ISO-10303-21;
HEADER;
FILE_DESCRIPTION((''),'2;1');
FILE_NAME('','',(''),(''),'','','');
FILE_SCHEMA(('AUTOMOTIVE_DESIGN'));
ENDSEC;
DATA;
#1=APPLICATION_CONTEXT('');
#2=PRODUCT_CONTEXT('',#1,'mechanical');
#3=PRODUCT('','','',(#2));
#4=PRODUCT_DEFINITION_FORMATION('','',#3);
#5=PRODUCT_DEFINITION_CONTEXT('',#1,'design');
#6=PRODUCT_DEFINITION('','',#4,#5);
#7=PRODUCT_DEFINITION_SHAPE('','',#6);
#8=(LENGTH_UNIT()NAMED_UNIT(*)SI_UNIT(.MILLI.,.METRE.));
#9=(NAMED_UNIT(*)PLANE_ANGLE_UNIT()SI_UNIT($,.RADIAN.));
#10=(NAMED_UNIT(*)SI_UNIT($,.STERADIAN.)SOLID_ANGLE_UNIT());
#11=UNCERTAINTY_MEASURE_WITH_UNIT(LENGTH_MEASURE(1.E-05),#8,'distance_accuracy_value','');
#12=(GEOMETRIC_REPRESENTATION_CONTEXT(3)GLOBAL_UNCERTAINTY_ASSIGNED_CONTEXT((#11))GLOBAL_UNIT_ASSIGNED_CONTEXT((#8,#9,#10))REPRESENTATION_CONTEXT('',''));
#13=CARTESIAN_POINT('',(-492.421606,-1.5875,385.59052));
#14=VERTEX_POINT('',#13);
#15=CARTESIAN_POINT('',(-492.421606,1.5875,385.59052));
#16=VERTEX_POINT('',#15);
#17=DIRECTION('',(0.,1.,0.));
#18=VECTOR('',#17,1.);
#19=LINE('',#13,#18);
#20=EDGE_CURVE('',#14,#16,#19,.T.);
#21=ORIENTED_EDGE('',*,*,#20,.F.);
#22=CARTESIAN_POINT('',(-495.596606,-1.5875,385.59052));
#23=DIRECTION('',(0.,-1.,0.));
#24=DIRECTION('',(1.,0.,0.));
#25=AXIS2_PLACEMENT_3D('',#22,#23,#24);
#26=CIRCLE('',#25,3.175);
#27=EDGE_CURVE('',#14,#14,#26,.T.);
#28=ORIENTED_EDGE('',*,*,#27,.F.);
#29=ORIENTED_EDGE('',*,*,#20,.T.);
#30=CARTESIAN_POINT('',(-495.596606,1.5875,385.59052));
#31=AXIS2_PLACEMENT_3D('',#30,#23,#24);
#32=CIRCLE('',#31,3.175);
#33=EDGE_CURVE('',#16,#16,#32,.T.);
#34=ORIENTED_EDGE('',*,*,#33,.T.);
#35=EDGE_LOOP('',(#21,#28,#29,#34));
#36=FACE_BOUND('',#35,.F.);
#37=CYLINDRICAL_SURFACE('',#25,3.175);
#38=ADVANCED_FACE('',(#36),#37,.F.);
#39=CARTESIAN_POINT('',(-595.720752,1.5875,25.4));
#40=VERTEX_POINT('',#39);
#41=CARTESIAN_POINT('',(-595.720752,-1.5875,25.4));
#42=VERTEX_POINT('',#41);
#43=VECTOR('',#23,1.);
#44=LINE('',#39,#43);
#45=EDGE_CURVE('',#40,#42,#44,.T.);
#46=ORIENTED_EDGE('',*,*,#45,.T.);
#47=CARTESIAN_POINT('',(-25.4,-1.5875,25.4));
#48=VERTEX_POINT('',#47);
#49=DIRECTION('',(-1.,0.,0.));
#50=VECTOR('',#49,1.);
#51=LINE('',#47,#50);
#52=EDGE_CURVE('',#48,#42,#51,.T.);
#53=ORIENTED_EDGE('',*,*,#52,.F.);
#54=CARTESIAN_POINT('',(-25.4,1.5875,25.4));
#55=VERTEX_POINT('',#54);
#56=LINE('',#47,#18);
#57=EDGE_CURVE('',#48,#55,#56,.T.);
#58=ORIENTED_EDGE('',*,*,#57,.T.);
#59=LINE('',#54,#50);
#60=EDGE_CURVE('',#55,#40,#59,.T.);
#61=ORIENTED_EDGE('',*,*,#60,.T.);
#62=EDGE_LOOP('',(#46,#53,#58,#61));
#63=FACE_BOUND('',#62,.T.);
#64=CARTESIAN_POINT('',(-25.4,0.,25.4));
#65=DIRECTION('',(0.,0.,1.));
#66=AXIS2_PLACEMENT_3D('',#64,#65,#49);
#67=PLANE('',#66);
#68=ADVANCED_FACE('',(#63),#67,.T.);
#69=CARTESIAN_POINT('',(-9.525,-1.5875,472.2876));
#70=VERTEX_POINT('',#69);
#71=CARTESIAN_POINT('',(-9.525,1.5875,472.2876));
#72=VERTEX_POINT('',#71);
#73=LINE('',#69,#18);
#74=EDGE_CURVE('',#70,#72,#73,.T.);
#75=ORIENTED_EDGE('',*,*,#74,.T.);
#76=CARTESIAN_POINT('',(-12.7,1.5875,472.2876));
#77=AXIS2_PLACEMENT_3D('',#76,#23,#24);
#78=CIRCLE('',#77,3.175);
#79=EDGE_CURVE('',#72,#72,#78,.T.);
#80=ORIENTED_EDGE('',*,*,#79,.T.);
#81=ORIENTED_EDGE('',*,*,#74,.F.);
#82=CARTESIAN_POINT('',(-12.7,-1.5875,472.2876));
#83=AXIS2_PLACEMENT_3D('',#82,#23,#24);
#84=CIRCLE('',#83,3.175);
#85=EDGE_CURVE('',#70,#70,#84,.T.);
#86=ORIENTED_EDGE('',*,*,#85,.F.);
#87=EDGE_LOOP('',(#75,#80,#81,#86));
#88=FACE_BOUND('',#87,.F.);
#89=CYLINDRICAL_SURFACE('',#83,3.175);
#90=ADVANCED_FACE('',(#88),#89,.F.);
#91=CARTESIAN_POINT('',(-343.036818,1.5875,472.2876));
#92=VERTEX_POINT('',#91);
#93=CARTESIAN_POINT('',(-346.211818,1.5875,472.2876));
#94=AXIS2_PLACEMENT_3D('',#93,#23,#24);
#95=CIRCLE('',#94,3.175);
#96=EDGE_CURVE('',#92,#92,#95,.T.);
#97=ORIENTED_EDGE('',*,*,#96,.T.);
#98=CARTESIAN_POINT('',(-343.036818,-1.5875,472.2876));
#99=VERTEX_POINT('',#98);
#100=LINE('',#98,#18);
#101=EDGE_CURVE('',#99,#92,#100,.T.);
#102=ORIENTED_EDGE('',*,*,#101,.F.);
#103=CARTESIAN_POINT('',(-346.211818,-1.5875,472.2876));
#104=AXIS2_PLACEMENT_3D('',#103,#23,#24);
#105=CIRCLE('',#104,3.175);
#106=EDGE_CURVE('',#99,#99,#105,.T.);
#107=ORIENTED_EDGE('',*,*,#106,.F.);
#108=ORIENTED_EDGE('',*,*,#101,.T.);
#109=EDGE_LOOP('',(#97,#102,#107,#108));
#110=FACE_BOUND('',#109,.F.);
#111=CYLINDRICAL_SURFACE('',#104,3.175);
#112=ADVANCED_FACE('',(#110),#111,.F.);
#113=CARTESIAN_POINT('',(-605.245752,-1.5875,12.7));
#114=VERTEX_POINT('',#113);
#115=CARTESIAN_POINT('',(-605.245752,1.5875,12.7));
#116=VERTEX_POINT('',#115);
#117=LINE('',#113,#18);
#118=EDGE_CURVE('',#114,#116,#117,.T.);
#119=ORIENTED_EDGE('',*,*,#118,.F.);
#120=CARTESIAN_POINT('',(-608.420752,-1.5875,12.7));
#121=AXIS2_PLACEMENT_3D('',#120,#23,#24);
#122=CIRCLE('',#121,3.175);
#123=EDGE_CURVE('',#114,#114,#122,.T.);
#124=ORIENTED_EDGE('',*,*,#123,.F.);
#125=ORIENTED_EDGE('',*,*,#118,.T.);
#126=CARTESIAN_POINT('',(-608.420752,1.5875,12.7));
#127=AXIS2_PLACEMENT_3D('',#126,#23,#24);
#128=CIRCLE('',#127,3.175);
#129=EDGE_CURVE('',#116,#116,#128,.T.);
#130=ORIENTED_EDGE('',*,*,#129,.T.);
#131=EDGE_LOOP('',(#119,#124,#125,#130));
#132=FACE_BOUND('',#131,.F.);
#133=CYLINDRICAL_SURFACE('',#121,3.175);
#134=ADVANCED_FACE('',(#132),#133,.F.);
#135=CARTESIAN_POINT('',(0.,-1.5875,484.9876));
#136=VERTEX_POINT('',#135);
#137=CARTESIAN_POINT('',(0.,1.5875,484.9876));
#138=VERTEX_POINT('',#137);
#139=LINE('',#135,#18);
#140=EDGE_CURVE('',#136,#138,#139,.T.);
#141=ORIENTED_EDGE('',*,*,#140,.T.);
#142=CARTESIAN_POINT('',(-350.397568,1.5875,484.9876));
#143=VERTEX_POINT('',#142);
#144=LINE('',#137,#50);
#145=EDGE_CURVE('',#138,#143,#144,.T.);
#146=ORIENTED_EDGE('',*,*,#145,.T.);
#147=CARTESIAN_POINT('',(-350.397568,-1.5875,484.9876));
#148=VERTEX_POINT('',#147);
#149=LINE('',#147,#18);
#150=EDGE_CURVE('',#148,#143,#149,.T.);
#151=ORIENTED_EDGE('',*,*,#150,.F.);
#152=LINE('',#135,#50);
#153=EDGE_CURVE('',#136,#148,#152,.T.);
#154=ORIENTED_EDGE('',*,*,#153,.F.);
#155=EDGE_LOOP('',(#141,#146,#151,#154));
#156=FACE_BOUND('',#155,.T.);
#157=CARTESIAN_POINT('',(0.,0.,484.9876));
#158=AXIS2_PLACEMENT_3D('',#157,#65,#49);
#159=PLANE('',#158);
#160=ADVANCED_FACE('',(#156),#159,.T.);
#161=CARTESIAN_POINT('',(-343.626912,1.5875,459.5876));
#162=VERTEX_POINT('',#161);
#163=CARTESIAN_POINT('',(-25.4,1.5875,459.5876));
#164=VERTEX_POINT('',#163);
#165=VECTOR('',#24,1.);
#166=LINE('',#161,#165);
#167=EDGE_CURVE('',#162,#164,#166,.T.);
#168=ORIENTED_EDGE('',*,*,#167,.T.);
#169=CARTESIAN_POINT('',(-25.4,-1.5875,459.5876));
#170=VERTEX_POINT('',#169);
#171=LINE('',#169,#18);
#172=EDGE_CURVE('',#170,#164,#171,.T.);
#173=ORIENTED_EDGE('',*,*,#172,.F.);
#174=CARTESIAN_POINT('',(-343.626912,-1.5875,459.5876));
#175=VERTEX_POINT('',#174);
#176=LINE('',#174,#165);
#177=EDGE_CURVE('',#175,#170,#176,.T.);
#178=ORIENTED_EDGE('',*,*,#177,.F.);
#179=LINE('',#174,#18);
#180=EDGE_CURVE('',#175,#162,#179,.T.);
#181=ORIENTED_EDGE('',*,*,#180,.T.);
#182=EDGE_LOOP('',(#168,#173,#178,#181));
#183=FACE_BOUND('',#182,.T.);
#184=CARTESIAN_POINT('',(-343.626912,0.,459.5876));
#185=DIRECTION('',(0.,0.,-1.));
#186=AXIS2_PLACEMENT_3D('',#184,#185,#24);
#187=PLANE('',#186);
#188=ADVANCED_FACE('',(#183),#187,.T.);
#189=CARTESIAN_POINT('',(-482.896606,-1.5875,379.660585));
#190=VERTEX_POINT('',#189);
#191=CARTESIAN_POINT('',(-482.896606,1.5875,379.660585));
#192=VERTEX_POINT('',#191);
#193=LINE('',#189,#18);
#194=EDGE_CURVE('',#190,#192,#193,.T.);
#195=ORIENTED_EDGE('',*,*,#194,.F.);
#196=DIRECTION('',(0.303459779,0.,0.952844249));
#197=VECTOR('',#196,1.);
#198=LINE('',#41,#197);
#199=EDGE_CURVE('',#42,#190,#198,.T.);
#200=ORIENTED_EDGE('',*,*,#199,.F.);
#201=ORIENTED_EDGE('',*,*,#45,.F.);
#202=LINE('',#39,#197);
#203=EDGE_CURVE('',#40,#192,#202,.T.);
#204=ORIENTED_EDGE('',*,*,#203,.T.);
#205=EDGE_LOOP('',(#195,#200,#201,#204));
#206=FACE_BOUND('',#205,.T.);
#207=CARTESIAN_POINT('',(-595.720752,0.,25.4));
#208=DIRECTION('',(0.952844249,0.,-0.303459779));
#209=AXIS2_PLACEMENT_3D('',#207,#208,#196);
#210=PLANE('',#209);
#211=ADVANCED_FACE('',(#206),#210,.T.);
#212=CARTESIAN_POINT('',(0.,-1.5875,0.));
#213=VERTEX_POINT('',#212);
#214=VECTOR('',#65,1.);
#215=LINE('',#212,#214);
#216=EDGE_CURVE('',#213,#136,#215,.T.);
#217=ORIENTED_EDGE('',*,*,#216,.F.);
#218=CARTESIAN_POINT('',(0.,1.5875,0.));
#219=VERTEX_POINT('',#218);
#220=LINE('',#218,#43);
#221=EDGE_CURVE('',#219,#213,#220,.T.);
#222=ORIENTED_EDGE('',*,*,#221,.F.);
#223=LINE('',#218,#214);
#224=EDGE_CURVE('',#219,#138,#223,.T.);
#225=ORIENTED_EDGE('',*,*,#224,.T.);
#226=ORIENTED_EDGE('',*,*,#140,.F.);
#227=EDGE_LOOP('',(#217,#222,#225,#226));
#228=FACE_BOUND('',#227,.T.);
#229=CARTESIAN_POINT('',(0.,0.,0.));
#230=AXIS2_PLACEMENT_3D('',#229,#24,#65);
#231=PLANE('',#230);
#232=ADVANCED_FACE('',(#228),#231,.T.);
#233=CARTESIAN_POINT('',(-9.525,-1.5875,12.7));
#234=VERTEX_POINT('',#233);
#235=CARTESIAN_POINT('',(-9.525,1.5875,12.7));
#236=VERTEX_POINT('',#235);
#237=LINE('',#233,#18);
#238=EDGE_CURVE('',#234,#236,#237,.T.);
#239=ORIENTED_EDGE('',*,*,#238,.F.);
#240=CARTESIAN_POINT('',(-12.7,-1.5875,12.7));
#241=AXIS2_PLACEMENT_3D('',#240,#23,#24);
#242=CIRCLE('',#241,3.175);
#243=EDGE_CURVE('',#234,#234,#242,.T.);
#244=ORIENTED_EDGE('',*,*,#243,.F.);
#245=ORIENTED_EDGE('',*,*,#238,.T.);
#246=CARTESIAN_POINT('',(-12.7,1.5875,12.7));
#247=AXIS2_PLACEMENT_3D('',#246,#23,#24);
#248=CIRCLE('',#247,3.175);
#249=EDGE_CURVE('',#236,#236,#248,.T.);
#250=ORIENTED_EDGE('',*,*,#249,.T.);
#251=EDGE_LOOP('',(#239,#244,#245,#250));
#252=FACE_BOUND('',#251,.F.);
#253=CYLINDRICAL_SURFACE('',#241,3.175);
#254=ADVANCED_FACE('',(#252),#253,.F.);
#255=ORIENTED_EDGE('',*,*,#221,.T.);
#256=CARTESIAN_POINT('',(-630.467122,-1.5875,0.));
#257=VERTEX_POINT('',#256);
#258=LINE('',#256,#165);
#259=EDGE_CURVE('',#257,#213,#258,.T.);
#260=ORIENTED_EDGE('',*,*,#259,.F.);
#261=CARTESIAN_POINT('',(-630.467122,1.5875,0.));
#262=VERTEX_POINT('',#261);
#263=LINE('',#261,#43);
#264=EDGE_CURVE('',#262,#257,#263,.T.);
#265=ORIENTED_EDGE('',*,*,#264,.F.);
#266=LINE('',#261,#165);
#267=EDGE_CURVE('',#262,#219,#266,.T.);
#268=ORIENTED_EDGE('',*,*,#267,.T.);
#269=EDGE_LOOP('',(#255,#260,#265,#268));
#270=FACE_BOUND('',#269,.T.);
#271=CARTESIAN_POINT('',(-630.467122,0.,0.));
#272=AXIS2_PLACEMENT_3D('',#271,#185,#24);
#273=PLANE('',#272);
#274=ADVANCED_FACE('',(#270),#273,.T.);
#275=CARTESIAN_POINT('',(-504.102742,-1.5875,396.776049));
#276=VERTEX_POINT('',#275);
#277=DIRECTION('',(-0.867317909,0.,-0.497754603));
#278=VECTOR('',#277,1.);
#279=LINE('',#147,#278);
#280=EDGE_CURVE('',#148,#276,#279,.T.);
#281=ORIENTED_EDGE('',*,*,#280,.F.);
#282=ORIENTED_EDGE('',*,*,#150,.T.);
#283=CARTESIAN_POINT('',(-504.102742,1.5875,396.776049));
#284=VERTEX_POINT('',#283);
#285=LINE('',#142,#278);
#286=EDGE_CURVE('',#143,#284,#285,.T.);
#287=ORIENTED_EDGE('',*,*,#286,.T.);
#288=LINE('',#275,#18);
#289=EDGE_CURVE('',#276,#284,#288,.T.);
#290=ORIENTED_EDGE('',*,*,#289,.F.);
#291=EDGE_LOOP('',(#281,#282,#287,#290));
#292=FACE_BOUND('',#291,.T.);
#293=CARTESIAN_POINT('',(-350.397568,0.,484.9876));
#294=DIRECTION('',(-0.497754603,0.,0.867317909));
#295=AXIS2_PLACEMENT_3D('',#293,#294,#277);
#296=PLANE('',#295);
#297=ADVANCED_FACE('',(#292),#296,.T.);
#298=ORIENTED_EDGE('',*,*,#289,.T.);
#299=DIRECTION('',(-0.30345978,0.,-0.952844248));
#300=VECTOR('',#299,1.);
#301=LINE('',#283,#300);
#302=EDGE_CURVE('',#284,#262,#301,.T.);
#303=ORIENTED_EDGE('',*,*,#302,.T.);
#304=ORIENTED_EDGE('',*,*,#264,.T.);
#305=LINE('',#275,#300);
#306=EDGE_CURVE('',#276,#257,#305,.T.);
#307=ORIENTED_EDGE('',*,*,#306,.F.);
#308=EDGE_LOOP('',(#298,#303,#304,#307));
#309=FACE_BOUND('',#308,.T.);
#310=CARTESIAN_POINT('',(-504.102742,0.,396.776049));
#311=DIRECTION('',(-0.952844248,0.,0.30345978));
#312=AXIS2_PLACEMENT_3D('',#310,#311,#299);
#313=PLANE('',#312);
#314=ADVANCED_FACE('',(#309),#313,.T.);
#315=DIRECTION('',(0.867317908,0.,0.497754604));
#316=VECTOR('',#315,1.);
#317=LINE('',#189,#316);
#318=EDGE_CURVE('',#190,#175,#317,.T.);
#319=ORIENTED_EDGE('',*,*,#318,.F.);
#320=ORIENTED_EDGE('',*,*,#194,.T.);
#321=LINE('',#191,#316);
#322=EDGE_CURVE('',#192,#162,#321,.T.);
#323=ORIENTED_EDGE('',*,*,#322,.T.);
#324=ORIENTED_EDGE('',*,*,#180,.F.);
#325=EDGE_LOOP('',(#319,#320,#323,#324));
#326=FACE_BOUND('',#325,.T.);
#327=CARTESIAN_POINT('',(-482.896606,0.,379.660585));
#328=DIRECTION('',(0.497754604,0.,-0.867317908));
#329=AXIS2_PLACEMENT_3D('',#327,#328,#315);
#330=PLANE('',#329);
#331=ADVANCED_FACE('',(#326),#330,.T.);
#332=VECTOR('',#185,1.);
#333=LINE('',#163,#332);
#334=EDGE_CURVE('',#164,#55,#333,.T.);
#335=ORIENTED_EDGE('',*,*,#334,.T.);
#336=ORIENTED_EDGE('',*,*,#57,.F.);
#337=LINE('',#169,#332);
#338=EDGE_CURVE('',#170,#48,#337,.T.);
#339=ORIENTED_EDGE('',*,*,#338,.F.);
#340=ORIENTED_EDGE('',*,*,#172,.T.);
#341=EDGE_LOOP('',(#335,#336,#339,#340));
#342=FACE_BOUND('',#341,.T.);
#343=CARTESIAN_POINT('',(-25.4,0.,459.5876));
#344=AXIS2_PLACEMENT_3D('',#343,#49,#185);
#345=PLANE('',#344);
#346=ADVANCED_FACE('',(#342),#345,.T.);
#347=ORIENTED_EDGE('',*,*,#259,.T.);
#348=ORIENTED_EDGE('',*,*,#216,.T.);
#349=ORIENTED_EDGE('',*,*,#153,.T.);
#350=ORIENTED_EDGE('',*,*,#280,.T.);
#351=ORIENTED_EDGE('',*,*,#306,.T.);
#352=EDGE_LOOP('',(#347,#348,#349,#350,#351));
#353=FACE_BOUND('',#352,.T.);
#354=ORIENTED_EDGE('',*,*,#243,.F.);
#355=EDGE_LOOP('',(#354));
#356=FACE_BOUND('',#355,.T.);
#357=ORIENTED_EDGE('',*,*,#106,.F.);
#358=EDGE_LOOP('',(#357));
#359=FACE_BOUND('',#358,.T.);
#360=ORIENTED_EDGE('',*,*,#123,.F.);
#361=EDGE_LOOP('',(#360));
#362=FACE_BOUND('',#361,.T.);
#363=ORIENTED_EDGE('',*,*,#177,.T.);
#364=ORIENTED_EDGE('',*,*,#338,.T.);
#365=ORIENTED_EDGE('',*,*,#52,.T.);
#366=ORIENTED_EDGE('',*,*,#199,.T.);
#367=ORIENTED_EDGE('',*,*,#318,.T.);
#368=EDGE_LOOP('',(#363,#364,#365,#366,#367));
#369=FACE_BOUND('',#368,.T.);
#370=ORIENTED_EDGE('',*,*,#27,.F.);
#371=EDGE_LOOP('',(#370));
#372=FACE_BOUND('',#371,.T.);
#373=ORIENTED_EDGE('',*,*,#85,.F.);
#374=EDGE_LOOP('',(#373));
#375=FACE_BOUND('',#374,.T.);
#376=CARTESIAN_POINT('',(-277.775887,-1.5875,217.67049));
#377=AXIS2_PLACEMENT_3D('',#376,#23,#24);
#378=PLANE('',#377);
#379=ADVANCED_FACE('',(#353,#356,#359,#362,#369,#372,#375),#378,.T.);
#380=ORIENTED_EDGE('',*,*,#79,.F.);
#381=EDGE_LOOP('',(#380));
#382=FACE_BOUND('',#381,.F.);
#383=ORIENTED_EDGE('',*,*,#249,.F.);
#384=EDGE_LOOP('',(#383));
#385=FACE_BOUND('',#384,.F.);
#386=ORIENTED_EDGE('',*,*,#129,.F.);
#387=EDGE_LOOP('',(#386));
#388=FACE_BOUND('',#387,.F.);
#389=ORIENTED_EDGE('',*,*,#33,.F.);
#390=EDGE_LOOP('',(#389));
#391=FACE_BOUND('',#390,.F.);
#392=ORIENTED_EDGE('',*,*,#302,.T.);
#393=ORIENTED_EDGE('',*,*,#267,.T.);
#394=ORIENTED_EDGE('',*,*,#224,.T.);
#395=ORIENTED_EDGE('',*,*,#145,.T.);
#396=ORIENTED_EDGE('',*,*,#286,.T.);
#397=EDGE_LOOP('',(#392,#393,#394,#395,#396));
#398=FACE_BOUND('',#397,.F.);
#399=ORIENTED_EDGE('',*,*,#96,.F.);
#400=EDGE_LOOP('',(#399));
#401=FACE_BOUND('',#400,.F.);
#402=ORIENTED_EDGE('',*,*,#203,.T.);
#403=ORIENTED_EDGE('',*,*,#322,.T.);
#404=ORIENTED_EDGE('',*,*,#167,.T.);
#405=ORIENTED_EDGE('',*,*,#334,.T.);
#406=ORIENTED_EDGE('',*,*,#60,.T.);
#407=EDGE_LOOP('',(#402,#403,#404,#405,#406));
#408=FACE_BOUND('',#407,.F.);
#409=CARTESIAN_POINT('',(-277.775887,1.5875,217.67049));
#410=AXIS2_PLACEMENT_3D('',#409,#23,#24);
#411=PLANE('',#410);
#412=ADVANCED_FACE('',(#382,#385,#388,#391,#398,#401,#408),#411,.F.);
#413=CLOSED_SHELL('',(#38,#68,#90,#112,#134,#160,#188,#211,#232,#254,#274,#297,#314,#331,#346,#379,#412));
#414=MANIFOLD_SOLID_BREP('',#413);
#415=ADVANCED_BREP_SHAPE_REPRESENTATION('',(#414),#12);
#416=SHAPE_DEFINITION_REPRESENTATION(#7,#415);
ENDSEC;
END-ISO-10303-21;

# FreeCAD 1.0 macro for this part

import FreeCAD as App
import Part
import Sketcher

V = App.Vector
Q = App.Units.Quantity


def add_polygon(sketch, points):
    """Adds a closed chain of lines whose ends are joined by coincident constraints."""
    first, n = sketch.GeometryCount, len(points)
    for a, b in zip(points, points[1:] + points[:1]):
        sketch.addGeometry(Part.LineSegment(App.Vector(*a, 0), App.Vector(*b, 0)), False)
    for i in range(n):
        sketch.addConstraint(Sketcher.Constraint("Coincident", first + i, 2, first + (i + 1) % n, 1))

doc = App.newDocument("Part")
body = doc.addObject("PartDesign::Body", "Body")

sketch1 = doc.addObject("Sketcher::SketchObject", "Sketch")
body.addObject(sketch1)
sketch1.AttachmentSupport = (doc.XZ_Plane, [""])
sketch1.MapMode = "FlatFace"
add_polygon(sketch1, [(-504, 397), (-630, 0), (0, 0), (0, 485), (-350, 485)])
add_polygon(sketch1, [(-25, 25), (-596, 25), (-483, 380), (-344, 460), (-25, 460)])
sketch1.addConstraint(Sketcher.Constraint("Horizontal", 1))
sketch1.addConstraint(Sketcher.Constraint("Vertical", 2))
sketch1.addConstraint(Sketcher.Constraint("Horizontal", 3))
sketch1.addConstraint(Sketcher.Constraint("Horizontal", 5))
sketch1.addConstraint(Sketcher.Constraint("Horizontal", 8))
sketch1.addConstraint(Sketcher.Constraint("Vertical", 9))
sketch1.addConstraint(Sketcher.Constraint("Coincident", 1, 2, -1, 1))
sketch1.addConstraint(Sketcher.Constraint("Parallel", 0, 6))
sketch1.addConstraint(Sketcher.Constraint("Parallel", 4, 7))
sketch1.addConstraint(Sketcher.Constraint("DistanceY", -1, 1, 5, 2, Q("1 in")))
sketch1.addConstraint(Sketcher.Constraint("DistanceX", 8, 2, -1, 1, Q("1 in")))
sketch1.addConstraint(Sketcher.Constraint("DistanceY", 7, 2, 3, 2, Q("1 in")))
sketch1.addConstraint(Sketcher.Constraint("DistanceY", 2, 1, 2, 2, Q("19.094 in")))
sketch1.addConstraint(Sketcher.Constraint("DistanceX", 1, 1, 1, 2, Q("630.467122 mm")))
sketch1.addConstraint(Sketcher.Constraint("DistanceX", 3, 2, 3, 1, Q("350.397568 mm")))
sketch1.addConstraint(Sketcher.Constraint("DistanceX", 5, 2, 5, 1, Q("570.320752 mm")))
sketch1.addConstraint(Sketcher.Constraint("Distance", 6, Q("371.792751 mm")))
sketch1.addConstraint(Sketcher.Constraint("Distance", 7, Q("160.575139 mm")))
sketch1.addConstraint(Sketcher.Constraint("DistanceX", 8, 1, 8, 2, Q("318.226912 mm")))
pad1 = doc.addObject("PartDesign::Pad", "Pad")
body.addObject(pad1)
pad1.Profile = sketch1
pad1.Type = "TwoLengths"
pad1.Length = Q("0.0625 in")
pad1.Length2 = Q("0.0625 in")

sketch2 = doc.addObject("Sketcher::SketchObject", "Sketch001")
body.addObject(sketch2)
sketch2.AttachmentSupport = (doc.XZ_Plane, [""])
sketch2.MapMode = "FlatFace"
sketch2.AttachmentOffset = App.Placement(V(0, 0, 0.0625 * 25.4), App.Rotation())
sketch2.addGeometry(Part.Circle(V(-12.7, 12.7, 0), V(0, 0, 1), 3.2), False)
sketch2.addGeometry(Part.Circle(V(-12.7, 472.3, 0), V(0, 0, 1), 3.2), False)
sketch2.addGeometry(Part.Circle(V(-346.2, 472.3, 0), V(0, 0, 1), 3.2), False)
sketch2.addGeometry(Part.Circle(V(-495.6, 385.6, 0), V(0, 0, 1), 3.2), False)
sketch2.addGeometry(Part.Circle(V(-608.4, 12.7, 0), V(0, 0, 1), 3.2), False)
sketch2.addConstraint(Sketcher.Constraint("Equal", 0, 1))
sketch2.addConstraint(Sketcher.Constraint("Equal", 1, 2))
sketch2.addConstraint(Sketcher.Constraint("Equal", 2, 3))
sketch2.addConstraint(Sketcher.Constraint("Equal", 3, 4))
sketch2.addConstraint(Sketcher.Constraint("Horizontal", 1, 3, 2, 3))
sketch2.addConstraint(Sketcher.Constraint("Horizontal", 0, 3, 4, 3))
sketch2.addConstraint(Sketcher.Constraint("Vertical", 0, 3, 1, 3))
sketch2.addConstraint(Sketcher.Constraint("Diameter", 0, Q("0.25 in")))
sketch2.addConstraint(Sketcher.Constraint("DistanceX", 0, 3, -1, 1, Q("0.5 in")))
sketch2.addConstraint(Sketcher.Constraint("DistanceY", -1, 1, 0, 3, Q("0.5 in")))
sketch2.addConstraint(Sketcher.Constraint("DistanceY", -1, 1, 1, 3, Q("18.594 in")))
sketch2.addConstraint(Sketcher.Constraint("DistanceX", 2, 3, -1, 1, Q("346.211818 mm")))
sketch2.addConstraint(Sketcher.Constraint("DistanceY", -1, 1, 3, 3, Q("385.59052 mm")))
sketch2.addConstraint(Sketcher.Constraint("DistanceX", 4, 3, -1, 1, Q("608.420752 mm")))
sketch2.addConstraint(Sketcher.Constraint("DistanceX", 3, 3, 2, 3, Q("149.384788 mm")))
pocket1 = doc.addObject("PartDesign::Pocket", "Pocket")
body.addObject(pocket1)
pocket1.Profile = sketch2
pocket1.Type = "ThroughAll"

doc.recompute()
